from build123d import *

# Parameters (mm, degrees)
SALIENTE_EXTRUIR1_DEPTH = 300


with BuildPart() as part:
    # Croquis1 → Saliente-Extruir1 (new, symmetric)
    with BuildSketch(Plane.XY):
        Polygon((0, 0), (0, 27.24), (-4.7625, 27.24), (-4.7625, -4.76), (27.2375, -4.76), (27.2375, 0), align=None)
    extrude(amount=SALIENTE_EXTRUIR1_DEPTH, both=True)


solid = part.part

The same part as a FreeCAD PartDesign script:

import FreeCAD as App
import Part
import Sketcher
Q = App.Units.Quantity

doc = App.newDocument("Part")
body = doc.addObject("PartDesign::Body", "Body")

# Sketch on XY plane
sketch1 = doc.addObject("Sketcher::SketchObject", "Sketch")
body.addObject(sketch1)
sketch1.AttachmentSupport = (doc.XY_Plane, [""])
sketch1.MapMode = "FlatFace"
sketch1.addGeometry(Part.LineSegment(App.Vector(0, 0, 0), App.Vector(0, 27.2, 0)), False)
sketch1.addGeometry(Part.LineSegment(App.Vector(0, 27.2, 0), App.Vector(-4.8, 27.2, 0)), False)
sketch1.addGeometry(Part.LineSegment(App.Vector(-4.8, 27.2, 0), App.Vector(-4.8, -4.8, 0)), False)
sketch1.addGeometry(Part.LineSegment(App.Vector(-4.8, -4.8, 0), App.Vector(27.2, -4.8, 0)), False)
sketch1.addGeometry(Part.LineSegment(App.Vector(27.2, -4.8, 0), App.Vector(27.2, 0, 0)), False)
sketch1.addGeometry(Part.LineSegment(App.Vector(27.2, 0, 0), App.Vector(0, 0, 0)), False)
sketch1.addConstraint(Sketcher.Constraint("Coincident", 0, 2, 1, 1))
sketch1.addConstraint(Sketcher.Constraint("Coincident", 1, 2, 2, 1))
sketch1.addConstraint(Sketcher.Constraint("Coincident", 2, 2, 3, 1))
sketch1.addConstraint(Sketcher.Constraint("Coincident", 3, 2, 4, 1))
sketch1.addConstraint(Sketcher.Constraint("Coincident", 4, 2, 5, 1))
sketch1.addConstraint(Sketcher.Constraint("Coincident", 5, 2, 0, 1))
sketch1.addConstraint(Sketcher.Constraint("Vertical", 0))
sketch1.addConstraint(Sketcher.Constraint("Horizontal", 1))
sketch1.addConstraint(Sketcher.Constraint("Vertical", 2))
sketch1.addConstraint(Sketcher.Constraint("Horizontal", 3))
sketch1.addConstraint(Sketcher.Constraint("Vertical", 4))
sketch1.addConstraint(Sketcher.Constraint("Horizontal", 5))
sketch1.addConstraint(Sketcher.Constraint("Coincident", 5, 2, -1, 1))
sketch1.addConstraint(Sketcher.Constraint("Equal", 3, 2))
sketch1.addConstraint(Sketcher.Constraint("DistanceX", 3, 1, 3, 2, Q("32 mm")))
sketch1.addConstraint(Sketcher.Constraint("DistanceY", 0, 1, 0, 2, Q("27.24 mm")))
sketch1.addConstraint(Sketcher.Constraint("DistanceX", 1, 2, 1, 1, Q("4.7625 mm")))
pad1 = doc.addObject("PartDesign::Pad", "Pad")
body.addObject(pad1)
pad1.Profile = sketch1
pad1.Length = 600
pad1.Midplane = True

doc.recompute()
